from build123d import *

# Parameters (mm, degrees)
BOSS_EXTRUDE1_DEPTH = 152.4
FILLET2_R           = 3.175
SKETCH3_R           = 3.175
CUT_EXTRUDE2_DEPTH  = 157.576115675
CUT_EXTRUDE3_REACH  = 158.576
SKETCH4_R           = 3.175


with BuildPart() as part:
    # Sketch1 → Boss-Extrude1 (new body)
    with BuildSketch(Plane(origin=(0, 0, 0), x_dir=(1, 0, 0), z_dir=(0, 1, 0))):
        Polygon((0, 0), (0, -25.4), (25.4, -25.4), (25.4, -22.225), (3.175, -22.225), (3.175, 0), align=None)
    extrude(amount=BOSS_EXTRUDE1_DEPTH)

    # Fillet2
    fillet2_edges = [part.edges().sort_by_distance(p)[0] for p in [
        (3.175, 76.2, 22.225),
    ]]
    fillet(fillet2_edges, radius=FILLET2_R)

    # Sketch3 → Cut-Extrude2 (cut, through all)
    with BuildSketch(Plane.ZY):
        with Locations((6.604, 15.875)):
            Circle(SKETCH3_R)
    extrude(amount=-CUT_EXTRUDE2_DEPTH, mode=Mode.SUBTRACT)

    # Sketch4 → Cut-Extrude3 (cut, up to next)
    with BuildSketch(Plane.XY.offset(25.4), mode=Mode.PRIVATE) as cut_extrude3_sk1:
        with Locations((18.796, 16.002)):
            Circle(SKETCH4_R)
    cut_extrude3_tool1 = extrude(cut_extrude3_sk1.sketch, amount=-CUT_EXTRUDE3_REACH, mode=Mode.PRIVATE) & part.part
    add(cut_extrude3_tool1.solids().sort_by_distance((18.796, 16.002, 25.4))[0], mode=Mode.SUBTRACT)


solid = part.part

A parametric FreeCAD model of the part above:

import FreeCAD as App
import Part
import Sketcher
from FreeCAD import Vector
Q = App.Units.Quantity


def edges_at(feature, points):
    """Names of the edges that pass closest to the given points."""
    edges = feature.Shape.Edges
    near = lambda p: min(range(len(edges)), key=lambda i: edges[i].distToShape(Part.Vertex(*p))[0])
    return sorted({f"Edge{near(p) + 1}" for p in points})

doc = App.newDocument("Part")
body = doc.addObject("PartDesign::Body", "Body")

# Sketch on XZ plane
sketch1 = doc.addObject("Sketcher::SketchObject", "Sketch")
body.addObject(sketch1)
sketch1.AttachmentSupport = (doc.XZ_Plane, [""])
sketch1.MapMode = "FlatFace"
sketch1.addGeometry([
    Part.LineSegment(Vector(0, 0, 0), Vector(0, 25.4, 0)),  # 0
    Part.LineSegment(Vector(0, 25.4, 0), Vector(25.4, 25.4, 0)),  # 1
    Part.LineSegment(Vector(25.4, 25.4, 0), Vector(25.4, 22.2, 0)),  # 2
    Part.LineSegment(Vector(25.4, 22.2, 0), Vector(3.2, 22.2, 0)),  # 3
    Part.LineSegment(Vector(3.2, 22.2, 0), Vector(3.2, 0, 0)),  # 4
    Part.LineSegment(Vector(3.2, 0, 0), Vector(0, 0, 0)),  # 5
], False)
sketch1.addConstraint([
    Sketcher.Constraint("Coincident", 0, 2, 1, 1),
    Sketcher.Constraint("Coincident", 1, 2, 2, 1),
    Sketcher.Constraint("Coincident", 2, 2, 3, 1),
    Sketcher.Constraint("Coincident", 3, 2, 4, 1),
    Sketcher.Constraint("Coincident", 4, 2, 5, 1),
    Sketcher.Constraint("Coincident", 5, 2, 0, 1),
    Sketcher.Constraint("Vertical", 0),
    Sketcher.Constraint("Horizontal", 1),
    Sketcher.Constraint("Vertical", 2),
    Sketcher.Constraint("Horizontal", 3),
    Sketcher.Constraint("Vertical", 4),
    Sketcher.Constraint("Horizontal", 5),
    Sketcher.Constraint("Coincident", 5, 2, -1, 1),
    Sketcher.Constraint("Equal", 1, 0),
    Sketcher.Constraint("Equal", 5, 2),
    Sketcher.Constraint("DistanceX", 1, 1, 1, 2, Q("1 in")),
    Sketcher.Constraint("DistanceX", 3, 2, 3, 1, Q("0.875 in")),
])
pad1 = doc.addObject("PartDesign::Pad", "Pad")
body.addObject(pad1)
pad1.Profile = sketch1
pad1.Length = Q("6 in")
pad1.Reversed = True
doc.recompute()

fillet = doc.addObject("PartDesign::Fillet", "Fillet")
body.addObject(fillet)
fillet.Base = (pad1, edges_at(pad1, [(3.175, 76.2, 22.225)]))
fillet.Radius = Q("0.125 in")

# Sketch on YZ plane
sketch2 = doc.addObject("Sketcher::SketchObject", "Sketch001")
body.addObject(sketch2)
sketch2.AttachmentSupport = (doc.YZ_Plane, [""])
sketch2.MapMode = "FlatFace"
sketch2.addGeometry(Part.Circle(Vector(15.9, 6.6, 0), Vector(0, 0, 1), 3.2), False)
sketch2.addConstraint([
    Sketcher.Constraint("Diameter", 0, Q("0.25 in")),
    Sketcher.Constraint("DistanceY", -1, 1, 0, 3, Q("0.26 in")),
    Sketcher.Constraint("DistanceX", -1, 1, 0, 3, Q("0.625 in")),
])
pocket1 = doc.addObject("PartDesign::Pocket", "Pocket")
body.addObject(pocket1)
pocket1.Profile = sketch2
pocket1.Type = "ThroughAll"
pocket1.Reversed = True

# Sketch on XY plane
sketch3 = doc.addObject("Sketcher::SketchObject", "Sketch002")
body.addObject(sketch3)
sketch3.AttachmentSupport = (doc.XY_Plane, [""])
sketch3.MapMode = "FlatFace"
sketch3.AttachmentOffset = App.Placement(Vector(0, 0, 1 * 25.4), App.Rotation())
sketch3.addGeometry(Part.Circle(Vector(18.8, 16, 0), Vector(0, 0, 1), 3.2), False)
sketch3.addConstraint([
    Sketcher.Constraint("Diameter", 0, Q("0.25 in")),
    Sketcher.Constraint("DistanceX", -1, 1, 0, 3, Q("0.74 in")),
    Sketcher.Constraint("DistanceY", -1, 1, 0, 3, Q("0.63 in")),
])
pocket2 = doc.addObject("PartDesign::Pocket", "Pocket001")
body.addObject(pocket2)
pocket2.Profile = sketch3
pocket2.Type = "UpToFirst"

doc.recompute()
